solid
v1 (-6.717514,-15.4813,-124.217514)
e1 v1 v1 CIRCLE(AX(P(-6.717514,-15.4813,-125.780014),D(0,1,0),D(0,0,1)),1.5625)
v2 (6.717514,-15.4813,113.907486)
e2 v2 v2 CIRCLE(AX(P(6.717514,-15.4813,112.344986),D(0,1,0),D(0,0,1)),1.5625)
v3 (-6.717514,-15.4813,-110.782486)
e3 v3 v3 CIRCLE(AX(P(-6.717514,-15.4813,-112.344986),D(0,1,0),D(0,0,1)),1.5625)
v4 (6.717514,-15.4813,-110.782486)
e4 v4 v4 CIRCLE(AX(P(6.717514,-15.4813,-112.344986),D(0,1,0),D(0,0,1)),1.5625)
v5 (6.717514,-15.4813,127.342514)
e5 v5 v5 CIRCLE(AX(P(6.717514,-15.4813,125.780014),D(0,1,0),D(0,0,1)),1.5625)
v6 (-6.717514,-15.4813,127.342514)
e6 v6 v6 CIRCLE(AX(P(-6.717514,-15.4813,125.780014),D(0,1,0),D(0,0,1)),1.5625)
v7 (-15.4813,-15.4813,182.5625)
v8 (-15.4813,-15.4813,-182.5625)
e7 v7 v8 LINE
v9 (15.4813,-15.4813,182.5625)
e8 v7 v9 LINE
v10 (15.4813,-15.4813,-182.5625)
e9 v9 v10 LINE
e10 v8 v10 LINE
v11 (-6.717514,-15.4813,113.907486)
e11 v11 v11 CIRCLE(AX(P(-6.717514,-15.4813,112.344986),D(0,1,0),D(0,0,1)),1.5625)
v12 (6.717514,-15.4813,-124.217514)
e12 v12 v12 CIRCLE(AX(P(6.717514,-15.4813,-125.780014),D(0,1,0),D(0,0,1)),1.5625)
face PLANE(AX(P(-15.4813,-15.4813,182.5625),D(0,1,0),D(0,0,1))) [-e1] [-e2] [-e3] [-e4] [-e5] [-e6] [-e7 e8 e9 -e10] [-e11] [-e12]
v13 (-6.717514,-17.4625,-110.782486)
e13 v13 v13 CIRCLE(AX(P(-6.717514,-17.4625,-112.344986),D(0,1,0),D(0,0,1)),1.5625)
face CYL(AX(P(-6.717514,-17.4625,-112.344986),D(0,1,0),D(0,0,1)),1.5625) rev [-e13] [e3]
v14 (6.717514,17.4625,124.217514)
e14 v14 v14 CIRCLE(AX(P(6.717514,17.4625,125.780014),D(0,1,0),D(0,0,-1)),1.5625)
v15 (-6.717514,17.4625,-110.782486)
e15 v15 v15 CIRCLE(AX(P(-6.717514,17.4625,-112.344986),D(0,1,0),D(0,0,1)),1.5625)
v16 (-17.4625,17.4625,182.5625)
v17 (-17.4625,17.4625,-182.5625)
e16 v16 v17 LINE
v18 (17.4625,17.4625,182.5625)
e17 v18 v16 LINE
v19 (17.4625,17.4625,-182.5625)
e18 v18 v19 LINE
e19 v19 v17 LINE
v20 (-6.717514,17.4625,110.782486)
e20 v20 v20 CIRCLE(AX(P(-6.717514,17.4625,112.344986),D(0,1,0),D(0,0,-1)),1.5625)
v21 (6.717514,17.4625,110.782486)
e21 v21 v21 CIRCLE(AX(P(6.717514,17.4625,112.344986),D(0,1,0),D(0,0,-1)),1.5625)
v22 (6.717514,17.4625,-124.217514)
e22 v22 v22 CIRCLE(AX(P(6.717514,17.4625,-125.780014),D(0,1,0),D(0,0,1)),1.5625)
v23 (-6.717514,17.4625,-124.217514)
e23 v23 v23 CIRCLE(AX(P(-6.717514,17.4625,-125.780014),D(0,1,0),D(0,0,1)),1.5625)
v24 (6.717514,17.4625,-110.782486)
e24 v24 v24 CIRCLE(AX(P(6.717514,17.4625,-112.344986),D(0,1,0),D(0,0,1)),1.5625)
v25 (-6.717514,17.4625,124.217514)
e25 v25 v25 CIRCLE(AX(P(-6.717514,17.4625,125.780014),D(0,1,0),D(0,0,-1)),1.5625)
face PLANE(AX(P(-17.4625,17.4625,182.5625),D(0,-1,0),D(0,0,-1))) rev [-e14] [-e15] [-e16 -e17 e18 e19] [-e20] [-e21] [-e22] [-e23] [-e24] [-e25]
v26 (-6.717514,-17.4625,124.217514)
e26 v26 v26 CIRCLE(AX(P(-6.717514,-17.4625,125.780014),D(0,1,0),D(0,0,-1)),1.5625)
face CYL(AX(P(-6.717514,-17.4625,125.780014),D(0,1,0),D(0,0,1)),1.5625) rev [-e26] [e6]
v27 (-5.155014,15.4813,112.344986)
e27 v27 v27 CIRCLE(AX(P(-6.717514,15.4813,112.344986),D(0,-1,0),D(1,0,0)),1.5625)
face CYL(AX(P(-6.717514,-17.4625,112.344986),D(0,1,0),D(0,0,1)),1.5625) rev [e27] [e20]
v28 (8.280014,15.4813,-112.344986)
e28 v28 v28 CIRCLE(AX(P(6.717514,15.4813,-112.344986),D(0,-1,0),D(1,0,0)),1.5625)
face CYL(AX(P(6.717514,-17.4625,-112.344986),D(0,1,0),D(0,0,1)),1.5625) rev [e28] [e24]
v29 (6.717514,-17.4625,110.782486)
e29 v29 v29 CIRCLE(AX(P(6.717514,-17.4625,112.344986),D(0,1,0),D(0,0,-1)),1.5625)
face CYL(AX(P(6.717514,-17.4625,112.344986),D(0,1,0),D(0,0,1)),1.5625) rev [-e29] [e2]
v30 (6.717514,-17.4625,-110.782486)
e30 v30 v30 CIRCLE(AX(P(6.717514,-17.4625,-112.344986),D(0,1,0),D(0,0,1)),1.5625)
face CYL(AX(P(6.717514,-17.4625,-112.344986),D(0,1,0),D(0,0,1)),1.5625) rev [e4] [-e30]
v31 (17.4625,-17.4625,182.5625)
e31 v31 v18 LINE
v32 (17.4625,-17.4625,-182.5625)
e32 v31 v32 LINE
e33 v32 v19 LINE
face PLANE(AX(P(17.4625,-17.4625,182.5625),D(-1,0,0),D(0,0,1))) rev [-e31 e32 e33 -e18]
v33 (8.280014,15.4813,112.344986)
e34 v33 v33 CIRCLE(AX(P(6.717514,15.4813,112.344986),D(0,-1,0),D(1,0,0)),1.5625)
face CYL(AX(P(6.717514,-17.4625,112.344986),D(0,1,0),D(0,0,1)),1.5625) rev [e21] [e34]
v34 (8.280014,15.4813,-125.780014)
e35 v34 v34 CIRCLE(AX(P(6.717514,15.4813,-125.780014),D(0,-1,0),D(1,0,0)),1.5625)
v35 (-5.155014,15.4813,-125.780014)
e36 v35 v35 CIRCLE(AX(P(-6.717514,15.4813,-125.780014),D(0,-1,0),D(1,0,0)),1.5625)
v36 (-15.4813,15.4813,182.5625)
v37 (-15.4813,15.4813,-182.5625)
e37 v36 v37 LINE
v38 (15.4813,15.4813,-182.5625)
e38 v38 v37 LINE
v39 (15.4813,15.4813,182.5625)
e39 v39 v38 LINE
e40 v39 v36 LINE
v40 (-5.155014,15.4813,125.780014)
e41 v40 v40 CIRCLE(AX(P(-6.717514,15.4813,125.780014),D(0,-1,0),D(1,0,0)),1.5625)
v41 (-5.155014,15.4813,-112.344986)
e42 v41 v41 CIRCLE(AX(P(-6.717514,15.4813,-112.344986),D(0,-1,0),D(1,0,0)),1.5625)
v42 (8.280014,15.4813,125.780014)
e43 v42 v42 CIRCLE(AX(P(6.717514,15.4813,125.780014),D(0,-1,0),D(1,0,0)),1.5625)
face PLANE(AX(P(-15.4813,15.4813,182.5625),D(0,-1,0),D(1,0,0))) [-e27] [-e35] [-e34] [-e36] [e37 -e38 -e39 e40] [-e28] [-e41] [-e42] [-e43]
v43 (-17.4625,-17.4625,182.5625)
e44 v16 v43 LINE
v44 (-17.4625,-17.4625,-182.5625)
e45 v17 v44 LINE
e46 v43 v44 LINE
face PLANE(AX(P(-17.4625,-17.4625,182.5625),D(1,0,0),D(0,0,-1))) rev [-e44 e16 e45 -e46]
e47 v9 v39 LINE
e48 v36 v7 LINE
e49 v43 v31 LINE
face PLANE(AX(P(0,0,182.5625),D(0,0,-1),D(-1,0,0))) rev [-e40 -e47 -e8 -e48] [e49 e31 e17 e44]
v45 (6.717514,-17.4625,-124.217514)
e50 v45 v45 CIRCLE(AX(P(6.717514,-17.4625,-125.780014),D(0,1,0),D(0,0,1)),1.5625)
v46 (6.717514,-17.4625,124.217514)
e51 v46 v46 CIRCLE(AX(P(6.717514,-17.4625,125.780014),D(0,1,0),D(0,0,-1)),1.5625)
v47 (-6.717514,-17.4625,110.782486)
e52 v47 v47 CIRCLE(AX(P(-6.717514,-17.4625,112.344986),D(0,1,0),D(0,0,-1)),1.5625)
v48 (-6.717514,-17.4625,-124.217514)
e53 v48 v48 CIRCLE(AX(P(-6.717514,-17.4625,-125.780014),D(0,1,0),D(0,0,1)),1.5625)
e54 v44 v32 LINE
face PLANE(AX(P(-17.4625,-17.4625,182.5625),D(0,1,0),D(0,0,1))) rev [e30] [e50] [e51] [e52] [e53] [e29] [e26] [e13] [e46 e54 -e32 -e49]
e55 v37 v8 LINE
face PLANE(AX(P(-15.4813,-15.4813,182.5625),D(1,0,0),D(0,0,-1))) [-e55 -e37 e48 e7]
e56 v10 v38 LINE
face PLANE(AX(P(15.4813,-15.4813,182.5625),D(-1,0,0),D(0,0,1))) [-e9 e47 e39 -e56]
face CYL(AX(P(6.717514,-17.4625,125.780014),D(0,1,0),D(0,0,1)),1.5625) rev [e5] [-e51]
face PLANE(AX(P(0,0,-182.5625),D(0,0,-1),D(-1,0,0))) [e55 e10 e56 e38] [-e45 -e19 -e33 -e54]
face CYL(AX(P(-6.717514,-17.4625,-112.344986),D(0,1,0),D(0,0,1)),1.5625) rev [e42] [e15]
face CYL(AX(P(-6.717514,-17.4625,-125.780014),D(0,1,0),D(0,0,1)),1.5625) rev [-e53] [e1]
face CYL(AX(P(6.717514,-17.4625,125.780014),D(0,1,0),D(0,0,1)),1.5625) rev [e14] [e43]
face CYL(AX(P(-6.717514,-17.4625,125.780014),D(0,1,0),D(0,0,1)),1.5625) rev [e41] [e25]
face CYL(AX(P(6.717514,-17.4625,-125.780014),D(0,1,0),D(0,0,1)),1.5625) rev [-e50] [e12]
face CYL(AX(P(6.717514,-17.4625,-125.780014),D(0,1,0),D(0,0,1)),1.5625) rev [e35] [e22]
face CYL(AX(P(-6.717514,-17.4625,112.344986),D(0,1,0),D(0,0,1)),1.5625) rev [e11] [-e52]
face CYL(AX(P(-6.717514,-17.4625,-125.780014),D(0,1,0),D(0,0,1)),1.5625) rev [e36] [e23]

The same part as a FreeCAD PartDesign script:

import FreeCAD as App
import Part
import Sketcher
from FreeCAD import Vector
Q = App.Units.Quantity


def add_polygon(sketch, points):
    """Adds a closed chain of lines whose ends are joined by coincident constraints."""
    first, n = sketch.GeometryCount, len(points)
    for a, b in zip(points, points[1:] + points[:1]):
        sketch.addGeometry(Part.LineSegment(App.Vector(*a, 0), App.Vector(*b, 0)), False)
    for i in range(n):
        sketch.addConstraint(Sketcher.Constraint("Coincident", first + i, 2, first + (i + 1) % n, 1))

doc = App.newDocument("Part")
body = doc.addObject("PartDesign::Body", "Body")

# Sketch on XY plane
sketch1 = body.newObject("Sketcher::SketchObject", "Sketch")
sketch1.AttachmentSupport = (doc.getObject("XY_Plane"), [""])
sketch1.MapMode = "FlatFace"
add_polygon(sketch1, [(-17, 17), (-17, -17), (17, -17), (17, 17)])  # lines 0-3
add_polygon(sketch1, [(15, -15), (-15, -15), (-15, 15), (15, 15)])  # lines 4-7
sketch1.addConstraint([
    Sketcher.Constraint("Vertical", 0),
    Sketcher.Constraint("Horizontal", 1),
    Sketcher.Constraint("Vertical", 2),
    Sketcher.Constraint("Horizontal", 3),
    Sketcher.Constraint("Horizontal", 4),
    Sketcher.Constraint("Vertical", 5),
    Sketcher.Constraint("Horizontal", 6),
    Sketcher.Constraint("Vertical", 7),
    Sketcher.Constraint("Symmetric", 0, 2, 2, 2, -1, 1),
    Sketcher.Constraint("Symmetric", 4, 2, 6, 2, -1, 1),
    Sketcher.Constraint("Equal", 3, 0),
    Sketcher.Constraint("Equal", 6, 5),
    Sketcher.Constraint("DistanceX", 1, 1, 1, 2, Q("1.375 in")),
    Sketcher.Constraint("DistanceX", 4, 2, 4, 1, Q("1.219 in")),
])
pad1 = body.newObject("PartDesign::Pad", "Pad")
pad1.Profile = sketch1
pad1.Length = Q("14.375 in")
pad1.Midplane = True

# Sketch on XZ plane
sketch2 = body.newObject("Sketcher::SketchObject", "Sketch001")
sketch2.AttachmentSupport = (doc.getObject("XZ_Plane"), [""])
sketch2.MapMode = "FlatFace"
sketch2.addGeometry([
    Part.Circle(Vector(-6.7, -125.8, 0), Vector(0, 0, 1), 1.6),  # 0
    Part.Circle(Vector(6.7, -125.8, 0), Vector(0, 0, 1), 1.6),  # 1
    Part.Circle(Vector(6.7, -112.3, 0), Vector(0, 0, 1), 1.6),  # 2
    Part.Circle(Vector(-6.7, -112.3, 0), Vector(0, 0, 1), 1.6),  # 3
    Part.Circle(Vector(-6.7, 112.3, 0), Vector(0, 0, 1), 1.6),  # 4
    Part.Circle(Vector(6.7, 112.3, 0), Vector(0, 0, 1), 1.6),  # 5
    Part.Circle(Vector(6.7, 125.8, 0), Vector(0, 0, 1), 1.6),  # 6
    Part.Circle(Vector(-6.7, 125.8, 0), Vector(0, 0, 1), 1.6),  # 7
], False)
sketch2.addConstraint([
    Sketcher.Constraint("Equal", 0, 1),
    Sketcher.Constraint("Equal", 1, 2),
    Sketcher.Constraint("Equal", 2, 3),
    Sketcher.Constraint("Equal", 3, 4),
    Sketcher.Constraint("Equal", 4, 5),
    Sketcher.Constraint("Equal", 5, 6),
    Sketcher.Constraint("Equal", 6, 7),
    Sketcher.Constraint("Symmetric", 2, 3, 4, 3, -1, 1),
    Sketcher.Constraint("Symmetric", 3, 3, 5, 3, -1, 1),
    Sketcher.Constraint("Symmetric", 0, 3, 6, 3, -1, 1),
    Sketcher.Constraint("Symmetric", 1, 3, 7, 3, -1, 1),
    Sketcher.Constraint("Symmetric", 0, 3, 1, 3, -2),
    Sketcher.Constraint("Symmetric", 2, 3, 3, 3, -2),
    Sketcher.Constraint("Vertical", 1, 3, 2, 3),
    Sketcher.Constraint("Diameter", 0, Q("3.125 mm")),
    Sketcher.Constraint("DistanceY", 0, 3, 4, 3, Q("9.375 in")),
    Sketcher.Constraint("DistanceX", 0, 3, 1, 3, Q("13.435029 mm")),
    Sketcher.Constraint("DistanceY", 1, 3, 2, 3, Q("13.435029 mm")),
])
pocket1 = body.newObject("PartDesign::Pocket", "Pocket")
pocket1.Profile = sketch2
pocket1.Type = "ThroughAll"
pocket1.Midplane = True

doc.recompute()
